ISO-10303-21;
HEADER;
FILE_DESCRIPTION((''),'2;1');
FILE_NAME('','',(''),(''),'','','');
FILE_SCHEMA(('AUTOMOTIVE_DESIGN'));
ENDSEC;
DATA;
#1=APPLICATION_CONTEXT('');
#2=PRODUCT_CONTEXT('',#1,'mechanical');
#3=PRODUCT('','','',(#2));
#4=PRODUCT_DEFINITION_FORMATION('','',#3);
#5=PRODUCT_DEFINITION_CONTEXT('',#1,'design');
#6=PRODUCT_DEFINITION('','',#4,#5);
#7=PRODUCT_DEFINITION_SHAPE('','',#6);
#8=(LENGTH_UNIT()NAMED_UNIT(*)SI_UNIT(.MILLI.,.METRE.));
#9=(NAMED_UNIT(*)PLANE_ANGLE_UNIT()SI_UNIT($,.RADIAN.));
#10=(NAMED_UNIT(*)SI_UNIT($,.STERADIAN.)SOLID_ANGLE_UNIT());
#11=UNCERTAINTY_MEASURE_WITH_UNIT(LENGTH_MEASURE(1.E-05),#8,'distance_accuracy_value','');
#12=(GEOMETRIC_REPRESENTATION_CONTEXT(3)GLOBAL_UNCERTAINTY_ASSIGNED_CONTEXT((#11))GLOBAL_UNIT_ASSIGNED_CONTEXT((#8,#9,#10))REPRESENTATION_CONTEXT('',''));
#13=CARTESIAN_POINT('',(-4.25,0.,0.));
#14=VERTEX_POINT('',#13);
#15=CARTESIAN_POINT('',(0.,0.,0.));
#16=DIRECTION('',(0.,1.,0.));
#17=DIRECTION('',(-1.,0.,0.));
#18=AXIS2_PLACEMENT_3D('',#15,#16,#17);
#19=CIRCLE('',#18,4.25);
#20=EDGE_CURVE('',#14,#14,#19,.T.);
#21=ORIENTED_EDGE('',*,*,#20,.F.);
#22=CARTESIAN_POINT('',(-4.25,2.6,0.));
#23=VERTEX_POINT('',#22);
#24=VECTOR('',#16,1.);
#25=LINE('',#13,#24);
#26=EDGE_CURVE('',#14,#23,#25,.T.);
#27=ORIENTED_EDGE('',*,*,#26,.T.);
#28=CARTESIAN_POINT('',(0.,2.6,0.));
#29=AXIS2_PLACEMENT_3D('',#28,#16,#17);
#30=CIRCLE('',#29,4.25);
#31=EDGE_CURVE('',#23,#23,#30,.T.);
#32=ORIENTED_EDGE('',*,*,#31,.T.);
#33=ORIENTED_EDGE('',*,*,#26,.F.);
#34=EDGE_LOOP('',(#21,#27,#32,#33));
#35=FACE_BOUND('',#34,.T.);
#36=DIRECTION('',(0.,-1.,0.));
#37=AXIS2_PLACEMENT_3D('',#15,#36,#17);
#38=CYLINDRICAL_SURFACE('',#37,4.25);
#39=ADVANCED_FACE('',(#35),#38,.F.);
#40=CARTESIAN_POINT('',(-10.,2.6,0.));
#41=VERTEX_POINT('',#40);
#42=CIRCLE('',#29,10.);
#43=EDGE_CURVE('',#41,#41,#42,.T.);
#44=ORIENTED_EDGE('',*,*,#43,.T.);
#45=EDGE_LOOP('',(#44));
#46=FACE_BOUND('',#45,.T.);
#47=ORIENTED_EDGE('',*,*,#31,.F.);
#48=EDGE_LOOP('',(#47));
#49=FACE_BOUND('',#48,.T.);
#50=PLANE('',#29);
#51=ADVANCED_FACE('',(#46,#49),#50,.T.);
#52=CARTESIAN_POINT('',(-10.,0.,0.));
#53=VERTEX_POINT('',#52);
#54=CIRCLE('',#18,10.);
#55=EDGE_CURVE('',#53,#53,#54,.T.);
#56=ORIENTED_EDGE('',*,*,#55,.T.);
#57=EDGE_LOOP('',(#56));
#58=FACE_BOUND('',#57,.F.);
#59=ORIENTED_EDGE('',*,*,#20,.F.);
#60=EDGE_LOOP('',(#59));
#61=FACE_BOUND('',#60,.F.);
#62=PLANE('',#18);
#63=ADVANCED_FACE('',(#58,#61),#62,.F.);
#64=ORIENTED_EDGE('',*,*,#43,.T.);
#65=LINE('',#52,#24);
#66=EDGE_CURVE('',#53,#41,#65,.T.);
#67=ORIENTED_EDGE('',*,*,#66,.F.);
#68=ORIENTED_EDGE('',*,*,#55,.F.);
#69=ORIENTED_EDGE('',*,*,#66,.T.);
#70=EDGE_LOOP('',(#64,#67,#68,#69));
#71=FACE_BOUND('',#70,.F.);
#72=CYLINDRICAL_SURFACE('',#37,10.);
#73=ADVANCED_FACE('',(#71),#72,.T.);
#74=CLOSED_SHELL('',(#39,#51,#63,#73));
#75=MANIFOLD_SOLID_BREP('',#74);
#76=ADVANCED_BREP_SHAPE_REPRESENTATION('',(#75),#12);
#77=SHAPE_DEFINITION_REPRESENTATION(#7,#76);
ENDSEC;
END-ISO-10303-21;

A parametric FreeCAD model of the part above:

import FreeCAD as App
import Part
import Sketcher

V = App.Vector
Q = App.Units.Quantity

doc = App.newDocument("Part")
body = doc.addObject("PartDesign::Body", "Body")

# Sketch on XZ plane
sketch1 = doc.addObject("Sketcher::SketchObject", "Sketch")
body.addObject(sketch1)
sketch1.AttachmentSupport = (doc.XZ_Plane, [""])
sketch1.MapMode = "FlatFace"
sketch1.addGeometry([
    Part.Circle(V(0, 0, 0), V(0, 0, 1), 10),
    Part.Circle(V(0, 0, 0), V(0, 0, 1), 4.2),
], False)
sketch1.addConstraint([
    Sketcher.Constraint("Coincident", 0, 3, -1, 1),
    Sketcher.Constraint("Coincident", 1, 3, -1, 1),
    Sketcher.Constraint("Diameter", 0, Q("20 mm")),
    Sketcher.Constraint("Diameter", 1, Q("8.5 mm")),
])
pad1 = doc.addObject("PartDesign::Pad", "Pad")
body.addObject(pad1)
pad1.Profile = sketch1
pad1.Length = 2.6
pad1.Reversed = True

doc.recompute()
